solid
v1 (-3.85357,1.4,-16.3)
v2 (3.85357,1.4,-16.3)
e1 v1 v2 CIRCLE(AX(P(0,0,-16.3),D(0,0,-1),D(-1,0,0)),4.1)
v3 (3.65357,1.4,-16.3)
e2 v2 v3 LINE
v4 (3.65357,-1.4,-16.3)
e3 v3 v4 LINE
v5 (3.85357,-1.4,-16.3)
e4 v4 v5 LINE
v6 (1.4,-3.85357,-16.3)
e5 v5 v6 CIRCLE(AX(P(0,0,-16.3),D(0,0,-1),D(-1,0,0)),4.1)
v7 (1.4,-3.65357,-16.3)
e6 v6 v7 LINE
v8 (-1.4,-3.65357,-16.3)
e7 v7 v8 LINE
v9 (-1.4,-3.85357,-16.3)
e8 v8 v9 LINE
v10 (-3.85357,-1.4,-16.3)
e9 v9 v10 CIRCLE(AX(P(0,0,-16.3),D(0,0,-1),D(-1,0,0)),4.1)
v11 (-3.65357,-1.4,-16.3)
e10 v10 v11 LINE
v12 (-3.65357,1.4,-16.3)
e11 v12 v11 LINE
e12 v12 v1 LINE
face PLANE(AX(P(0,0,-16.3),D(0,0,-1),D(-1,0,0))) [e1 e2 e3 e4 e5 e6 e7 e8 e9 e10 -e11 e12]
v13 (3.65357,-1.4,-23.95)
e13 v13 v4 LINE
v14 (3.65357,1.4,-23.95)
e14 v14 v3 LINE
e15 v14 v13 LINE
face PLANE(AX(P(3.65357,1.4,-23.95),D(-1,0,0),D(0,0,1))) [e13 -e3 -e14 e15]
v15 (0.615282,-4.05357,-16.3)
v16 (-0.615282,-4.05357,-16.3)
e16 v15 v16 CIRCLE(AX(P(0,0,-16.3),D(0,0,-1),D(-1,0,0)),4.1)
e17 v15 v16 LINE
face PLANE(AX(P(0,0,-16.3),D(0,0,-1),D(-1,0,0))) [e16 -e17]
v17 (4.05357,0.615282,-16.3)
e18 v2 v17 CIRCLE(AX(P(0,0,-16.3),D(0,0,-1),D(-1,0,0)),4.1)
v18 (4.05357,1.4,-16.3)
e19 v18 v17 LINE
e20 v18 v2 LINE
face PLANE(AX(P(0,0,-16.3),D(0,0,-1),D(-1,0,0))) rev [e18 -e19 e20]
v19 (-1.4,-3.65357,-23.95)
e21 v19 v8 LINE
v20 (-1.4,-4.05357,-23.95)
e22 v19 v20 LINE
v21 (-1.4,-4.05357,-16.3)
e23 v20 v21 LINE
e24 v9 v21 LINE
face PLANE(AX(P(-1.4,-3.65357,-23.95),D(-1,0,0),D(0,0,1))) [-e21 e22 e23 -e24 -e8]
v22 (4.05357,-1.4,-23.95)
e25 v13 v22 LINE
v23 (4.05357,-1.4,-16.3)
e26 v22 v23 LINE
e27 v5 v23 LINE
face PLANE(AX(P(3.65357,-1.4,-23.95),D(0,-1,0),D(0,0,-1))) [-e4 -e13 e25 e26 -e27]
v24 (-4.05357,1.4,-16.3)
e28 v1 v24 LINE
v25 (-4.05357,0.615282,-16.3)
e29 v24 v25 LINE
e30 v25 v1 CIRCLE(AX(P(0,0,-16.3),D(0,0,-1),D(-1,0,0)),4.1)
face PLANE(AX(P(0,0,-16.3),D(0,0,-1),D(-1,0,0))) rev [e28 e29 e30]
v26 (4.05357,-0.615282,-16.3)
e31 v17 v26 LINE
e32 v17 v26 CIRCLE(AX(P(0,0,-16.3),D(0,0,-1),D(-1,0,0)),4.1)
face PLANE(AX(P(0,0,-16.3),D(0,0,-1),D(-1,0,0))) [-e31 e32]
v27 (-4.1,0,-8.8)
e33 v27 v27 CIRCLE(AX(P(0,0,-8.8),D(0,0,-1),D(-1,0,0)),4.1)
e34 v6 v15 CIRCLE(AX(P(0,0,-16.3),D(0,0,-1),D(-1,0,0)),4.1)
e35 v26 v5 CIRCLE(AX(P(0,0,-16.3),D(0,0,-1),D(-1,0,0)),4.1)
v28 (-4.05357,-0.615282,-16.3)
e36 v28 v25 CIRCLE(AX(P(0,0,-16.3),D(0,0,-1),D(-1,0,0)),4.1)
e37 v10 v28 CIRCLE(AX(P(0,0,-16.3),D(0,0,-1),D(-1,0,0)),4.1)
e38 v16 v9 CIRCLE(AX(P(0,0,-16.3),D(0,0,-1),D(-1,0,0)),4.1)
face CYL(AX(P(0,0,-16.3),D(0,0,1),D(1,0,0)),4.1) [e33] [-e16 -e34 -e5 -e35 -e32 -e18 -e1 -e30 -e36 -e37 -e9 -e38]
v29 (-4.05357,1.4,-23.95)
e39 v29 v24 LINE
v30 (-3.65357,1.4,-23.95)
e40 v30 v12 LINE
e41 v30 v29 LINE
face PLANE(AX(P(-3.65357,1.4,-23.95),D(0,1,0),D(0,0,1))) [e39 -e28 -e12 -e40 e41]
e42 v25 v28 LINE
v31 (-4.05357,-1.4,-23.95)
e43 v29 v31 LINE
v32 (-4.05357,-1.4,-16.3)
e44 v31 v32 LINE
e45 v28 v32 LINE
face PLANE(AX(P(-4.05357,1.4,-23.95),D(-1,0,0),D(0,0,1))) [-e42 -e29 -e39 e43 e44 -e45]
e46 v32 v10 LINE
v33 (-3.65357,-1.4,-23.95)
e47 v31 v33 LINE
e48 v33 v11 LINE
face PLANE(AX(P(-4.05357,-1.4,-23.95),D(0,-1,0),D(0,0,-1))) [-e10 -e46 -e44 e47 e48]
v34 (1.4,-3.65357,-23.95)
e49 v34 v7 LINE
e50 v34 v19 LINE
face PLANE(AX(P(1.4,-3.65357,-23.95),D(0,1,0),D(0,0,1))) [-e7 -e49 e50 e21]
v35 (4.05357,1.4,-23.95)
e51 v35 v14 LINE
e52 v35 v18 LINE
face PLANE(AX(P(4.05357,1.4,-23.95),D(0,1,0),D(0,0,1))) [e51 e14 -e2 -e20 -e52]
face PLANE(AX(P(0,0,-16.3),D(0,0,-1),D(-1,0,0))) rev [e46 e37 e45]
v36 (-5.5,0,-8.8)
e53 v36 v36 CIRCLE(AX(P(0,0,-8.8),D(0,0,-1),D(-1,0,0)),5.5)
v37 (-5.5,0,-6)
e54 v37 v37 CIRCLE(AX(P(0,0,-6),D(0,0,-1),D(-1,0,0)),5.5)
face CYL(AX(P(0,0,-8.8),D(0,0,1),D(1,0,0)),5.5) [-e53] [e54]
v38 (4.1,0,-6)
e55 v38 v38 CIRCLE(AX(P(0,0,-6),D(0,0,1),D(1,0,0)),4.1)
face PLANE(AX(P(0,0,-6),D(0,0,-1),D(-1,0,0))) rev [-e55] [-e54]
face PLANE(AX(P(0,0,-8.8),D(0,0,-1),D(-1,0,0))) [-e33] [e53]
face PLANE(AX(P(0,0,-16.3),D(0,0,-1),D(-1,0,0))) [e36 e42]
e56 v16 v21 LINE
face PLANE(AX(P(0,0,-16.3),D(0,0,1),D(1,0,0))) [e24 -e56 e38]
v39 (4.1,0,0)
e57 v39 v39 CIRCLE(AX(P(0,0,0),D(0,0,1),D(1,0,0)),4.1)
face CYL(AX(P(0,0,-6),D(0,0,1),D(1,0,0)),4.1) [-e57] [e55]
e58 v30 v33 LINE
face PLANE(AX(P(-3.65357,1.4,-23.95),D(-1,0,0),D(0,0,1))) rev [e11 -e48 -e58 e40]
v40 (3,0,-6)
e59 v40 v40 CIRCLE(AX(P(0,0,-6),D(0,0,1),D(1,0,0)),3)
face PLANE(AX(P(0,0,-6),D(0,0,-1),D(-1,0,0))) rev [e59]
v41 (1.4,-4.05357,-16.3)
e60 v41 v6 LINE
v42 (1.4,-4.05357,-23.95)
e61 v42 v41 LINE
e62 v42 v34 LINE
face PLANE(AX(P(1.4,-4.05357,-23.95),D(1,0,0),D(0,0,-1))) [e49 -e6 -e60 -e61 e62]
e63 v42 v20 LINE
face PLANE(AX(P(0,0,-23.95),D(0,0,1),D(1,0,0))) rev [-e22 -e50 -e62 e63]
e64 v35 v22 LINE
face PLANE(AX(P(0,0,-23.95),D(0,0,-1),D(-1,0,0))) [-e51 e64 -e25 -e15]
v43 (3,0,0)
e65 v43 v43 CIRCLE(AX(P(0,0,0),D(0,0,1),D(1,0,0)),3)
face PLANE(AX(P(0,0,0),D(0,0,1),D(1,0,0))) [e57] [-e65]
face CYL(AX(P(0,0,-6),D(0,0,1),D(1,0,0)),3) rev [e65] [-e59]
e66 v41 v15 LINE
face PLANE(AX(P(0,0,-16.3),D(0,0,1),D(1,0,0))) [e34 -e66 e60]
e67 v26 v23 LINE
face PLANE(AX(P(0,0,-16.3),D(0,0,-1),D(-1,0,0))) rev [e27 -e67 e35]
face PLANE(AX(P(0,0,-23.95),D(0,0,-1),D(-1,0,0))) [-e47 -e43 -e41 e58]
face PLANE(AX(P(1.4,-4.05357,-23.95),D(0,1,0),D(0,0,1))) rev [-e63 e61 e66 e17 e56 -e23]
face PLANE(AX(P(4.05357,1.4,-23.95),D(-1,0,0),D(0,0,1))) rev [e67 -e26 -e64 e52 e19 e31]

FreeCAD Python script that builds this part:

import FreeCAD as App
import Part
import Sketcher
from FreeCAD import Vector
Q = App.Units.Quantity


def add_polygon(sketch, points):
    """Adds a closed chain of lines whose ends are joined by coincident constraints."""
    first, n = sketch.GeometryCount, len(points)
    for a, b in zip(points, points[1:] + points[:1]):
        sketch.addGeometry(Part.LineSegment(App.Vector(*a, 0), App.Vector(*b, 0)), False)
    for i in range(n):
        sketch.addConstraint(Sketcher.Constraint("Coincident", first + i, 2, first + (i + 1) % n, 1))

doc = App.newDocument("Part")
params = doc.addObject("Spreadsheet::Sheet", "Params")
for row, (alias, value) in enumerate([
    ("sketch1_diameter", "6 mm"),
    ("sketch1_diameter2", "8.2 mm"),
    ("pad1_length", "6 mm"),
    ("sketch2_diameter", "11 mm"),
    ("pad2_length", "2.8 mm"),
    ("sketch3_diameter", "8.2 mm"),
    ("pad3_length", "7.5 mm"),
    ("sketch4_width", "0.4 mm"),
    ("sketch4_width2", "2.8 mm"),
    ("pad4_length", "7.65 mm"),
], start=1):
    params.set(f"A{row}", alias)
    params.set(f"B{row}", "=" + value)
    params.setAlias(f"B{row}", alias)

body = doc.addObject("PartDesign::Body", "Body")

sketch1 = body.newObject("Sketcher::SketchObject", "Sketch")
sketch1.AttachmentSupport = (doc.getObject("XY_Plane"), [""])
sketch1.MapMode = "FlatFace"
sketch1.addGeometry([
    Part.Circle(Vector(0, 0, 0), Vector(0, 0, 1), 4.1),
    Part.Circle(Vector(0, 0, 0), Vector(0, 0, 1), 3),
], False)
sketch1.addConstraint([
    Sketcher.Constraint("Coincident", 0, 3, -1, 1),
    Sketcher.Constraint("Coincident", 1, 3, -1, 1),
    Sketcher.Constraint("Diameter", 1, Q("6 mm")),
    Sketcher.Constraint("Diameter", 0, Q("8.2 mm")),
])
sketch1.setExpression("Constraints[2]", "Params.sketch1_diameter")
sketch1.setExpression("Constraints[3]", "Params.sketch1_diameter2")
pad1 = body.newObject("PartDesign::Pad", "Pad")
pad1.Profile = sketch1
pad1.setExpression("Length", "Params.pad1_length")
pad1.Reversed = True

sketch2 = body.newObject("Sketcher::SketchObject", "Sketch001")
sketch2.AttachmentSupport = (doc.getObject("XY_Plane"), [""])
sketch2.MapMode = "FlatFace"
sketch2.AttachmentOffset = App.Placement(Vector(0, 0, -6), App.Rotation())
sketch2.addGeometry(Part.Circle(Vector(0, 0, 0), Vector(0, 0, 1), 6), False)
sketch2.addConstraint([
    Sketcher.Constraint("Coincident", 0, 3, -1, 1),
    Sketcher.Constraint("Diameter", 0, Q("11 mm")),
])
sketch2.setExpression("Constraints[1]", "Params.sketch2_diameter")
pad2 = body.newObject("PartDesign::Pad", "Pad001")
pad2.Profile = sketch2
pad2.setExpression("Length", "Params.pad2_length")
pad2.Reversed = True

sketch3 = body.newObject("Sketcher::SketchObject", "Sketch002")
sketch3.AttachmentSupport = (doc.getObject("XY_Plane"), [""])
sketch3.MapMode = "FlatFace"
sketch3.AttachmentOffset = App.Placement(Vector(0, 0, -8.8), App.Rotation())
sketch3.addGeometry(Part.Circle(Vector(0, 0, 0), Vector(0, 0, 1), 4.1), False)
sketch3.addConstraint([
    Sketcher.Constraint("Coincident", 0, 3, -1, 1),
    Sketcher.Constraint("Diameter", 0, Q("8.2 mm")),
])
sketch3.setExpression("Constraints[1]", "Params.sketch3_diameter")
pad3 = body.newObject("PartDesign::Pad", "Pad002")
pad3.Profile = sketch3
pad3.setExpression("Length", "Params.pad3_length")
pad3.Reversed = True

sketch4 = body.newObject("Sketcher::SketchObject", "Sketch003")
sketch4.AttachmentSupport = (doc.getObject("XY_Plane"), [""])
sketch4.MapMode = "FlatFace"
sketch4.AttachmentOffset = App.Placement(Vector(0, 0, -16.3), App.Rotation())
add_polygon(sketch4, [(4.05, 1.4), (4.05, -1.4), (3.65, -1.4), (3.65, 1.4)])
add_polygon(sketch4, [(1.4, -3.65), (1.4, -4.05), (-1.4, -4.05), (-1.4, -3.65)])
add_polygon(sketch4, [(-3.65, 1.4), (-3.65, -1.4), (-4.05, -1.4), (-4.05, 1.4)])
sketch4.addConstraint([
    Sketcher.Constraint("Vertical", 0),
    Sketcher.Constraint("Horizontal", 1),
    Sketcher.Constraint("Vertical", 2),
    Sketcher.Constraint("Horizontal", 3),
    Sketcher.Constraint("Vertical", 4),
    Sketcher.Constraint("Horizontal", 5),
    Sketcher.Constraint("Vertical", 6),
    Sketcher.Constraint("Horizontal", 7),
    Sketcher.Constraint("Vertical", 8),
    Sketcher.Constraint("Horizontal", 9),
    Sketcher.Constraint("Vertical", 10),
    Sketcher.Constraint("Horizontal", 11),
    Sketcher.Constraint("Symmetric", 2, 2, 8, 2, -1, 1),
    Sketcher.Constraint("Symmetric", 0, 2, 10, 2, -1, 1),
    Sketcher.Constraint("Horizontal", 1, 2, 8, 2),
    Sketcher.Constraint("Equal", 7, 0),
    Sketcher.Constraint("Equal", 11, 4),
    Sketcher.Constraint("DistanceX", 1, 2, 1, 1, Q("0.4 mm")),
    Sketcher.Constraint("DistanceX", 5, 2, 5, 1, Q("2.8 mm")),
    Sketcher.Constraint("DistanceX", -1, 1, 4, 2, Q("1.4 mm")),
    Sketcher.Constraint("DistanceX", -1, 1, 0, 2, Q("4.05357 mm")),
    Sketcher.Constraint("DistanceY", 4, 2, -1, 1, Q("4.05357 mm")),
])
sketch4.setExpression("Constraints[29]", "Params.sketch4_width")
sketch4.setExpression("Constraints[30]", "Params.sketch4_width2")
pad4 = body.newObject("PartDesign::Pad", "Pad003")
pad4.Profile = sketch4
pad4.setExpression("Length", "Params.pad4_length")
pad4.Reversed = True

doc.recompute()
